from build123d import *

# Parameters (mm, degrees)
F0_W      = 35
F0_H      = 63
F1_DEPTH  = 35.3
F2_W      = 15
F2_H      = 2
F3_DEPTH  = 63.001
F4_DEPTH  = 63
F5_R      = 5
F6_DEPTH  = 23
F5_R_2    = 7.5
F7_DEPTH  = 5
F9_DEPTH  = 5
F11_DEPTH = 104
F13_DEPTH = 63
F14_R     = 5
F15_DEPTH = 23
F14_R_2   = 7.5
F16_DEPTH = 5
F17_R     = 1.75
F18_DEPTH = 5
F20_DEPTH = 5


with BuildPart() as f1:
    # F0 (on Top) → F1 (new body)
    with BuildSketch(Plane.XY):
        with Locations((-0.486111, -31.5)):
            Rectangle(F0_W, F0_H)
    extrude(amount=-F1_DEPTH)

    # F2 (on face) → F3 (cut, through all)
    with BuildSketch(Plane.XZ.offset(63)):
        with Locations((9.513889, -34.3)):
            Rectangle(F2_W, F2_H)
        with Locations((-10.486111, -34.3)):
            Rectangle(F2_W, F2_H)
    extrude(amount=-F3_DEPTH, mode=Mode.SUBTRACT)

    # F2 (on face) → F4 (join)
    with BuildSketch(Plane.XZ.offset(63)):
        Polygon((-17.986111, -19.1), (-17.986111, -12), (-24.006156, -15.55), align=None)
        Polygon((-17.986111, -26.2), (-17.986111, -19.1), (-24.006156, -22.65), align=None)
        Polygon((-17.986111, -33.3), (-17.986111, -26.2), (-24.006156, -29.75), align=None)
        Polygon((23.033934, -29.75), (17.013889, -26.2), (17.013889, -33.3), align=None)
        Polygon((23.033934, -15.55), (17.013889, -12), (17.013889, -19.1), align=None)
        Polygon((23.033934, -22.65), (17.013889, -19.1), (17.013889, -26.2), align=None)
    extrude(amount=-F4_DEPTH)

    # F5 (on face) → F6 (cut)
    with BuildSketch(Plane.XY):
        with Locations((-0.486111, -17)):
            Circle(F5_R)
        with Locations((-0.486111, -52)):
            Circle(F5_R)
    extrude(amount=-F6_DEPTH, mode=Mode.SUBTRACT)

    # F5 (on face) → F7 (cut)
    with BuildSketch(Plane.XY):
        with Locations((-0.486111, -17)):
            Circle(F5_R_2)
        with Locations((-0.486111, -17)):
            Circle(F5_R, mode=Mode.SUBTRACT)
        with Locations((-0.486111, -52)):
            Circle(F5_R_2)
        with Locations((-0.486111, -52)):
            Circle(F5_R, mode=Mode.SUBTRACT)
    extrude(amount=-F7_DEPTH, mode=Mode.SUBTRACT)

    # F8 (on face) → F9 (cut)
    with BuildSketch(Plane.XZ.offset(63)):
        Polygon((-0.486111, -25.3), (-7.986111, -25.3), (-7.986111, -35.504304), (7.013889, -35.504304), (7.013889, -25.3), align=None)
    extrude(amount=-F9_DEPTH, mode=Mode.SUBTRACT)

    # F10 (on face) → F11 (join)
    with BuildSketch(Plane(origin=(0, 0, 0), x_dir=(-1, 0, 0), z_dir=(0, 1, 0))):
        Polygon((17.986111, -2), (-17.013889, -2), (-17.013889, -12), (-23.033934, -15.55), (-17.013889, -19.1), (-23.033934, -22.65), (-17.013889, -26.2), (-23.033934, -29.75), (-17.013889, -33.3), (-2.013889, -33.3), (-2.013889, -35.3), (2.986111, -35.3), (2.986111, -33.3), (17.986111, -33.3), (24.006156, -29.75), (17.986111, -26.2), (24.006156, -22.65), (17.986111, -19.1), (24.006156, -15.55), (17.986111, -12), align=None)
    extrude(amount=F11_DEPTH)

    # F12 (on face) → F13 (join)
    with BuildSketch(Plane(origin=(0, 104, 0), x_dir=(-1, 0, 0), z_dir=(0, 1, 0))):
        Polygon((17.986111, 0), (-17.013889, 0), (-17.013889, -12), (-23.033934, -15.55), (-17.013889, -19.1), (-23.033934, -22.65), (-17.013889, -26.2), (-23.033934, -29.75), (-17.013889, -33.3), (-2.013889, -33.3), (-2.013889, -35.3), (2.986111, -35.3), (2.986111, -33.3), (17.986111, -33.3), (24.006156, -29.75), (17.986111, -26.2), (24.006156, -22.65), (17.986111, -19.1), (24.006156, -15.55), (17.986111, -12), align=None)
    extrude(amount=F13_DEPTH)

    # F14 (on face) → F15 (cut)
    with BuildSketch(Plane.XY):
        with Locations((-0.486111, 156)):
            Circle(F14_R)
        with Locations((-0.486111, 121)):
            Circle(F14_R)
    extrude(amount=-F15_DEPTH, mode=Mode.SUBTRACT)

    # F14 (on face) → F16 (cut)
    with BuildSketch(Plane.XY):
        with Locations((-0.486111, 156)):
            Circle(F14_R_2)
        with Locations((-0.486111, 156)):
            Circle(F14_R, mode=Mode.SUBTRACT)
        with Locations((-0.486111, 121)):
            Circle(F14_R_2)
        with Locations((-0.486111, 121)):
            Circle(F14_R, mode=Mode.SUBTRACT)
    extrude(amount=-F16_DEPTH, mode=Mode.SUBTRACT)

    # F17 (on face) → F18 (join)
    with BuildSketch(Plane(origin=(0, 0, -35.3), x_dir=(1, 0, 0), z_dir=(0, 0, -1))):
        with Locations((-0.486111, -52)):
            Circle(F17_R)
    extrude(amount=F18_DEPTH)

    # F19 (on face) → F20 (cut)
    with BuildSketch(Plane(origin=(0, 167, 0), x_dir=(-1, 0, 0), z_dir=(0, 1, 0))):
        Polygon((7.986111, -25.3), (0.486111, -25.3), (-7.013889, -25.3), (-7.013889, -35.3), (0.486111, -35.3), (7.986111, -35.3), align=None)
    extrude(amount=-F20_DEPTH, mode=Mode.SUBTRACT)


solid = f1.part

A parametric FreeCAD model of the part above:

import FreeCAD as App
import Part
import Sketcher

V = App.Vector
Q = App.Units.Quantity


def add_polygon(sketch, points):
    """Adds a closed chain of lines whose ends are joined by coincident constraints."""
    first, n = sketch.GeometryCount, len(points)
    for a, b in zip(points, points[1:] + points[:1]):
        sketch.addGeometry(Part.LineSegment(App.Vector(*a, 0), App.Vector(*b, 0)), False)
    for i in range(n):
        sketch.addConstraint(Sketcher.Constraint("Coincident", first + i, 2, first + (i + 1) % n, 1))

doc = App.newDocument("Part")
body = doc.addObject("PartDesign::Body", "Body")

# Sketch on XY plane
sketch1 = doc.addObject("Sketcher::SketchObject", "Sketch")
body.addObject(sketch1)
sketch1.AttachmentSupport = (doc.XY_Plane, [""])
sketch1.MapMode = "FlatFace"
add_polygon(sketch1, [(-18, 0), (-18, -63), (17, -63), (17, 0)])  # lines 0-3
sketch1.addConstraint([
    Sketcher.Constraint("Vertical", 0),
    Sketcher.Constraint("Horizontal", 1),
    Sketcher.Constraint("Vertical", 2),
    Sketcher.Constraint("Horizontal", 3),
    Sketcher.Constraint("PointOnObject", 2, 2, -1),
    Sketcher.Constraint("DistanceX", 1, 1, 1, 2, Q("35 mm")),
    Sketcher.Constraint("DistanceY", 0, 2, 0, 1, Q("63 mm")),
    Sketcher.Constraint("DistanceX", 0, 2, -1, 1, Q("17.986111 mm")),
])
pad1 = doc.addObject("PartDesign::Pad", "Pad")
body.addObject(pad1)
pad1.Profile = sketch1
pad1.Length = 35.3
pad1.Reversed = True

# Sketch on XZ plane
sketch2 = doc.addObject("Sketcher::SketchObject", "Sketch001")
body.addObject(sketch2)
sketch2.AttachmentSupport = (doc.XZ_Plane, [""])
sketch2.MapMode = "FlatFace"
sketch2.AttachmentOffset = App.Placement(V(0, 0, 63), App.Rotation())
add_polygon(sketch2, [(2, -33.3), (2, -35.3), (17, -35.3), (17, -33.3)])  # lines 0-3
add_polygon(sketch2, [(-18, -33.3), (-18, -35.3), (-3, -35.3), (-3, -33.3)])  # lines 4-7
sketch2.addConstraint([
    Sketcher.Constraint("Vertical", 0),
    Sketcher.Constraint("Horizontal", 1),
    Sketcher.Constraint("Vertical", 2),
    Sketcher.Constraint("Horizontal", 3),
    Sketcher.Constraint("Vertical", 4),
    Sketcher.Constraint("Horizontal", 5),
    Sketcher.Constraint("Vertical", 6),
    Sketcher.Constraint("Horizontal", 7),
    Sketcher.Constraint("Horizontal", 1, 2, 4, 2),
    Sketcher.Constraint("Horizontal", 3, 2, 6, 2),
    Sketcher.Constraint("Equal", 3, 5),
    Sketcher.Constraint("DistanceX", 1, 1, 1, 2, Q("15 mm")),
    Sketcher.Constraint("DistanceY", 0, 2, 0, 1, Q("2 mm")),
    Sketcher.Constraint("DistanceX", 4, 2, 0, 2, Q("20 mm")),
    Sketcher.Constraint("DistanceY", 0, 2, -1, 1, Q("35.3 mm")),
    Sketcher.Constraint("DistanceX", -1, 1, 0, 2, Q("2.013889 mm")),
])
pocket1 = doc.addObject("PartDesign::Pocket", "Pocket")
body.addObject(pocket1)
pocket1.Profile = sketch2
pocket1.Type = "ThroughAll"

# Sketch on XZ plane
sketch3 = doc.addObject("Sketcher::SketchObject", "Sketch002")
body.addObject(sketch3)
sketch3.AttachmentSupport = (doc.XZ_Plane, [""])
sketch3.MapMode = "FlatFace"
sketch3.AttachmentOffset = App.Placement(V(0, 0, 63), App.Rotation())
add_polygon(sketch3, [(-18, -19), (-18, -12), (-24, -16)])  # lines 0-2
add_polygon(sketch3, [(-18, -26), (-18, -19), (-24, -23)])  # lines 3-5
add_polygon(sketch3, [(-18, -33), (-18, -26), (-24, -30)])  # lines 6-8
add_polygon(sketch3, [(23, -30), (17, -26), (17, -33)])  # lines 9-11
add_polygon(sketch3, [(23, -16), (17, -12), (17, -19)])  # lines 12-14
add_polygon(sketch3, [(23, -23), (17, -19), (17, -26)])  # lines 15-17
sketch3.addConstraint([
    Sketcher.Constraint("Vertical", 0),
    Sketcher.Constraint("Vertical", 3),
    Sketcher.Constraint("Vertical", 6),
    Sketcher.Constraint("Vertical", 10),
    Sketcher.Constraint("Vertical", 13),
    Sketcher.Constraint("Vertical", 16),
    Sketcher.Constraint("Coincident", 3, 2, 2, 2),
    Sketcher.Constraint("Coincident", 6, 2, 5, 2),
    Sketcher.Constraint("Coincident", 15, 2, 13, 2),
    Sketcher.Constraint("Coincident", 16, 2, 9, 2),
    Sketcher.Constraint("Parallel", 1, 4),
    Sketcher.Constraint("Parallel", 2, 5),
    Sketcher.Constraint("Parallel", 4, 7),
    Sketcher.Constraint("Parallel", 5, 8),
    Sketcher.Constraint("Parallel", 8, 9),
    Sketcher.Constraint("Parallel", 7, 11),
    Sketcher.Constraint("Parallel", 9, 12),
    Sketcher.Constraint("Parallel", 11, 14),
    Sketcher.Constraint("Parallel", 12, 15),
    Sketcher.Constraint("Parallel", 14, 17),
    Sketcher.Constraint("Horizontal", 6, 2, 9, 2),
    Sketcher.Constraint("Horizontal", 8, 2, 10, 2),
    Sketcher.Constraint("Horizontal", 7, 2, 11, 2),
    Sketcher.Constraint("Horizontal", 0, 2, 12, 2),
    Sketcher.Constraint("Horizontal", 3, 2, 13, 2),
    Sketcher.Constraint("Vertical", 1, 2, 4, 2),
    Sketcher.Constraint("Vertical", 4, 2, 7, 2),
    Sketcher.Constraint("DistanceY", 0, 1, 0, 2, Q("7.1 mm")),
    Sketcher.Constraint("DistanceY", 0, 2, -1, 1, Q("12 mm")),
    Sketcher.Constraint("DistanceX", 5, 2, 9, 2, Q("35 mm")),
    Sketcher.Constraint("Distance", 1, Q("6.988808 mm")),
    Sketcher.Constraint("DistanceX", 0, 2, -1, 1, Q("17.986111 mm")),
])
pad2 = doc.addObject("PartDesign::Pad", "Pad001")
body.addObject(pad2)
pad2.Profile = sketch3
pad2.Length = 63
pad2.Reversed = True

# Sketch on XY plane
sketch4 = doc.addObject("Sketcher::SketchObject", "Sketch003")
body.addObject(sketch4)
sketch4.AttachmentSupport = (doc.XY_Plane, [""])
sketch4.MapMode = "FlatFace"
sketch4.addGeometry([
    Part.Circle(V(0, -17, 0), V(0, 0, 1), 5),
    Part.Circle(V(0, -52, 0), V(0, 0, 1), 5),
], False)
sketch4.addConstraint([
    Sketcher.Constraint("Equal", 0, 1),
    Sketcher.Constraint("Vertical", 0, 3, 1, 3),
    Sketcher.Constraint("Diameter", 0, Q("10 mm")),
    Sketcher.Constraint("DistanceY", 0, 3, -1, 1, Q("17 mm")),
    Sketcher.Constraint("DistanceY", 1, 3, -1, 1, Q("52 mm")),
    Sketcher.Constraint("DistanceX", 0, 3, -1, 1, Q("0.486111 mm")),
])
pocket2 = doc.addObject("PartDesign::Pocket", "Pocket001")
body.addObject(pocket2)
pocket2.Profile = sketch4
pocket2.Length = 23

# Sketch on XY plane
sketch5 = doc.addObject("Sketcher::SketchObject", "Sketch004")
body.addObject(sketch5)
sketch5.AttachmentSupport = (doc.XY_Plane, [""])
sketch5.MapMode = "FlatFace"
sketch5.addGeometry([
    Part.Circle(V(0, -17, 0), V(0, 0, 1), 8),
    Part.Circle(V(0, -17, 0), V(0, 0, 1), 5),
    Part.Circle(V(0, -52, 0), V(0, 0, 1), 8),
    Part.Circle(V(0, -52, 0), V(0, 0, 1), 5),
], False)
sketch5.addConstraint([
    Sketcher.Constraint("Coincident", 1, 3, 0, 3),
    Sketcher.Constraint("Coincident", 3, 3, 2, 3),
    Sketcher.Constraint("Equal", 0, 2),
    Sketcher.Constraint("Equal", 1, 3),
    Sketcher.Constraint("Vertical", 1, 3, 2, 3),
    Sketcher.Constraint("Diameter", 0, Q("15 mm")),
    Sketcher.Constraint("Diameter", 1, Q("10 mm")),
    Sketcher.Constraint("DistanceY", 0, 3, -1, 1, Q("17 mm")),
    Sketcher.Constraint("DistanceY", 2, 3, -1, 1, Q("52 mm")),
    Sketcher.Constraint("DistanceX", 0, 3, -1, 1, Q("0.486111 mm")),
])
pocket3 = doc.addObject("PartDesign::Pocket", "Pocket002")
body.addObject(pocket3)
pocket3.Profile = sketch5
pocket3.Length = 5

# Sketch on XZ plane
sketch6 = doc.addObject("Sketcher::SketchObject", "Sketch005")
body.addObject(sketch6)
sketch6.AttachmentSupport = (doc.XZ_Plane, [""])
sketch6.MapMode = "FlatFace"
sketch6.AttachmentOffset = App.Placement(V(0, 0, 63), App.Rotation())
add_polygon(sketch6, [(-8, -25), (-8, -36), (7, -36), (7, -25)])  # lines 0-3
sketch6.addConstraint([
    Sketcher.Constraint("Vertical", 0),
    Sketcher.Constraint("Horizontal", 1),
    Sketcher.Constraint("Vertical", 2),
    Sketcher.Constraint("Horizontal", 3),
    Sketcher.Constraint("DistanceX", 1, 1, 1, 2, Q("15 mm")),
    Sketcher.Constraint("DistanceY", 2, 2, -1, 1, Q("25.3 mm")),
    Sketcher.Constraint("DistanceY", 0, 2, 0, 1, Q("10.204304 mm")),
    Sketcher.Constraint("DistanceX", 0, 2, -1, 1, Q("7.986111 mm")),
])
pocket4 = doc.addObject("PartDesign::Pocket", "Pocket003")
body.addObject(pocket4)
pocket4.Profile = sketch6
pocket4.Length = 5

# Sketch on XZ plane
sketch7 = doc.addObject("Sketcher::SketchObject", "Sketch006")
body.addObject(sketch7)
sketch7.AttachmentSupport = (doc.XZ_Plane, [""])
sketch7.MapMode = "FlatFace"
add_polygon(sketch7, [(-18, -2), (17, -2), (17, -12), (23, -15.6), (17, -19.1), (23, -22.6), (17, -26.2), (23, -29.8), (17, -33.3), (2, -33.3), (2, -35.3), (-3, -35.3), (-3, -33.3), (-18, -33.3), (-24, -29.8), (-18, -26.2), (-24, -22.6), (-18, -19.1), (-24, -15.6), (-18, -12)])  # lines 0-19
sketch7.addConstraint([
    Sketcher.Constraint("Horizontal", 0),
    Sketcher.Constraint("Vertical", 1),
    Sketcher.Constraint("Horizontal", 8),
    Sketcher.Constraint("Vertical", 9),
    Sketcher.Constraint("Horizontal", 10),
    Sketcher.Constraint("Vertical", 11),
    Sketcher.Constraint("Horizontal", 12),
    Sketcher.Constraint("Vertical", 19),
    Sketcher.Constraint("Parallel", 2, 4),
    Sketcher.Constraint("Parallel", 3, 5),
    Sketcher.Constraint("Parallel", 4, 6),
    Sketcher.Constraint("Parallel", 5, 7),
    Sketcher.Constraint("Parallel", 6, 13),
    Sketcher.Constraint("Parallel", 7, 14),
    Sketcher.Constraint("Parallel", 13, 15),
    Sketcher.Constraint("Parallel", 14, 16),
    Sketcher.Constraint("Parallel", 15, 17),
    Sketcher.Constraint("Parallel", 16, 18),
    Sketcher.Constraint("Horizontal", 8, 2, 11, 2),
    Sketcher.Constraint("Horizontal", 6, 2, 13, 2),
    Sketcher.Constraint("Horizontal", 5, 2, 14, 2),
    Sketcher.Constraint("Horizontal", 4, 2, 15, 2),
    Sketcher.Constraint("Horizontal", 3, 2, 16, 2),
    Sketcher.Constraint("Horizontal", 2, 2, 17, 2),
    Sketcher.Constraint("Horizontal", 1, 2, 18, 2),
    Sketcher.Constraint("Vertical", 1, 2, 3, 2),
    Sketcher.Constraint("Vertical", 2, 2, 4, 2),
    Sketcher.Constraint("Vertical", 3, 2, 5, 2),
    Sketcher.Constraint("Vertical", 4, 2, 6, 2),
    Sketcher.Constraint("Vertical", 5, 2, 7, 2),
    Sketcher.Constraint("Vertical", 12, 2, 14, 2),
    Sketcher.Constraint("Equal", 8, 12),
    Sketcher.Constraint("DistanceX", 0, 1, 0, 2, Q("35 mm")),
    Sketcher.Constraint("DistanceX", 8, 2, 8, 1, Q("15 mm")),
    Sketcher.Constraint("DistanceY", 1, 2, 1, 1, Q("10 mm")),
    Sketcher.Constraint("DistanceY", 9, 2, 9, 1, Q("2 mm")),
    Sketcher.Constraint("DistanceY", 0, 2, -1, 1, Q("2 mm")),
    Sketcher.Constraint("DistanceY", 3, 2, -1, 1, Q("19.1 mm")),
    Sketcher.Constraint("Distance", 2, Q("6.988808 mm")),
    Sketcher.Constraint("DistanceX", -1, 1, 0, 2, Q("17.013889 mm")),
])
pad3 = doc.addObject("PartDesign::Pad", "Pad002")
body.addObject(pad3)
pad3.Profile = sketch7
pad3.Length = 104
pad3.Reversed = True

# Sketch on XZ plane
sketch8 = doc.addObject("Sketcher::SketchObject", "Sketch007")
body.addObject(sketch8)
sketch8.AttachmentSupport = (doc.XZ_Plane, [""])
sketch8.MapMode = "FlatFace"
sketch8.AttachmentOffset = App.Placement(V(0, 0, -104), App.Rotation())
add_polygon(sketch8, [(-18, 0), (17, 0), (17, -12), (23, -15.6), (17, -19.1), (23, -22.6), (17, -26.2), (23, -29.8), (17, -33.3), (2, -33.3), (2, -35.3), (-3, -35.3), (-3, -33.3), (-18, -33.3), (-24, -29.8), (-18, -26.2), (-24, -22.6), (-18, -19.1), (-24, -15.6), (-18, -12)])  # lines 0-19
sketch8.addConstraint([
    Sketcher.Constraint("Horizontal", 0),
    Sketcher.Constraint("Vertical", 1),
    Sketcher.Constraint("Horizontal", 8),
    Sketcher.Constraint("Vertical", 9),
    Sketcher.Constraint("Horizontal", 10),
    Sketcher.Constraint("Vertical", 11),
    Sketcher.Constraint("Horizontal", 12),
    Sketcher.Constraint("Vertical", 19),
    Sketcher.Constraint("PointOnObject", 0, 2, -1),
    Sketcher.Constraint("Parallel", 2, 4),
    Sketcher.Constraint("Parallel", 3, 5),
    Sketcher.Constraint("Parallel", 4, 6),
    Sketcher.Constraint("Parallel", 5, 7),
    Sketcher.Constraint("Parallel", 6, 13),
    Sketcher.Constraint("Parallel", 7, 14),
    Sketcher.Constraint("Parallel", 13, 15),
    Sketcher.Constraint("Parallel", 14, 16),
    Sketcher.Constraint("Parallel", 15, 17),
    Sketcher.Constraint("Parallel", 16, 18),
    Sketcher.Constraint("Horizontal", 8, 2, 11, 2),
    Sketcher.Constraint("Horizontal", 6, 2, 13, 2),
    Sketcher.Constraint("Horizontal", 5, 2, 14, 2),
    Sketcher.Constraint("Horizontal", 4, 2, 15, 2),
    Sketcher.Constraint("Horizontal", 3, 2, 16, 2),
    Sketcher.Constraint("Horizontal", 2, 2, 17, 2),
    Sketcher.Constraint("Horizontal", 1, 2, 18, 2),
    Sketcher.Constraint("Vertical", 1, 2, 3, 2),
    Sketcher.Constraint("Vertical", 2, 2, 4, 2),
    Sketcher.Constraint("Vertical", 3, 2, 5, 2),
    Sketcher.Constraint("Vertical", 4, 2, 6, 2),
    Sketcher.Constraint("Vertical", 5, 2, 7, 2),
    Sketcher.Constraint("Vertical", 12, 2, 14, 2),
    Sketcher.Constraint("Equal", 8, 12),
    Sketcher.Constraint("DistanceX", 0, 1, 0, 2, Q("35 mm")),
    Sketcher.Constraint("DistanceX", 8, 2, 8, 1, Q("15 mm")),
    Sketcher.Constraint("DistanceY", 1, 2, 1, 1, Q("12 mm")),
    Sketcher.Constraint("DistanceY", 9, 2, 9, 1, Q("2 mm")),
    Sketcher.Constraint("DistanceY", 3, 2, -1, 1, Q("19.1 mm")),
    Sketcher.Constraint("Distance", 2, Q("6.988808 mm")),
    Sketcher.Constraint("DistanceX", -1, 1, 0, 2, Q("17.013889 mm")),
])
pad4 = doc.addObject("PartDesign::Pad", "Pad003")
body.addObject(pad4)
pad4.Profile = sketch8
pad4.Length = 63
pad4.Reversed = True

# Sketch on XY plane
sketch9 = doc.addObject("Sketcher::SketchObject", "Sketch008")
body.addObject(sketch9)
sketch9.AttachmentSupport = (doc.XY_Plane, [""])
sketch9.MapMode = "FlatFace"
sketch9.addGeometry([
    Part.Circle(V(0, 156, 0), V(0, 0, 1), 5),
    Part.Circle(V(0, 121, 0), V(0, 0, 1), 5),
], False)
sketch9.addConstraint([
    Sketcher.Constraint("Equal", 0, 1),
    Sketcher.Constraint("Vertical", 0, 3, 1, 3),
    Sketcher.Constraint("Diameter", 0, Q("10 mm")),
    Sketcher.Constraint("DistanceY", -1, 1, 0, 3, Q("156 mm")),
    Sketcher.Constraint("DistanceY", -1, 1, 1, 3, Q("121 mm")),
    Sketcher.Constraint("DistanceX", 0, 3, -1, 1, Q("0.486111 mm")),
])
pocket5 = doc.addObject("PartDesign::Pocket", "Pocket004")
body.addObject(pocket5)
pocket5.Profile = sketch9
pocket5.Length = 23

# Sketch on XY plane
sketch10 = doc.addObject("Sketcher::SketchObject", "Sketch009")
body.addObject(sketch10)
sketch10.AttachmentSupport = (doc.XY_Plane, [""])
sketch10.MapMode = "FlatFace"
sketch10.addGeometry([
    Part.Circle(V(0, 156, 0), V(0, 0, 1), 8),
    Part.Circle(V(0, 156, 0), V(0, 0, 1), 5),
    Part.Circle(V(0, 121, 0), V(0, 0, 1), 8),
    Part.Circle(V(0, 121, 0), V(0, 0, 1), 5),
], False)
sketch10.addConstraint([
    Sketcher.Constraint("Coincident", 1, 3, 0, 3),
    Sketcher.Constraint("Coincident", 3, 3, 2, 3),
    Sketcher.Constraint("Equal", 0, 2),
    Sketcher.Constraint("Equal", 1, 3),
    Sketcher.Constraint("Vertical", 1, 3, 2, 3),
    Sketcher.Constraint("Diameter", 0, Q("15 mm")),
    Sketcher.Constraint("Diameter", 1, Q("10 mm")),
    Sketcher.Constraint("DistanceY", -1, 1, 0, 3, Q("156 mm")),
    Sketcher.Constraint("DistanceY", -1, 1, 2, 3, Q("121 mm")),
    Sketcher.Constraint("DistanceX", 0, 3, -1, 1, Q("0.486111 mm")),
])
pocket6 = doc.addObject("PartDesign::Pocket", "Pocket005")
body.addObject(pocket6)
pocket6.Profile = sketch10
pocket6.Length = 5

# Sketch on XY plane
sketch11 = doc.addObject("Sketcher::SketchObject", "Sketch010")
body.addObject(sketch11)
sketch11.AttachmentSupport = (doc.XY_Plane, [""])
sketch11.MapMode = "FlatFace"
sketch11.AttachmentOffset = App.Placement(V(0, 0, -35.3), App.Rotation())
sketch11.addGeometry(Part.Circle(V(-0.5, 52, 0), V(0, 0, 1), 1.8), False)
sketch11.addConstraint([
    Sketcher.Constraint("Diameter", 0, Q("3.5 mm")),
    Sketcher.Constraint("DistanceY", -1, 1, 0, 3, Q("52 mm")),
    Sketcher.Constraint("DistanceX", 0, 3, -1, 1, Q("0.486111 mm")),
])
pad5 = doc.addObject("PartDesign::Pad", "Pad004")
body.addObject(pad5)
pad5.Profile = sketch11
pad5.Length = 5
pad5.Reversed = True

# Sketch on XZ plane
sketch12 = doc.addObject("Sketcher::SketchObject", "Sketch011")
body.addObject(sketch12)
sketch12.AttachmentSupport = (doc.XZ_Plane, [""])
sketch12.MapMode = "FlatFace"
sketch12.AttachmentOffset = App.Placement(V(0, 0, -167), App.Rotation())
add_polygon(sketch12, [(-8, -25), (7, -25), (7, -35), (-8, -35)])  # lines 0-3
sketch12.addConstraint([
    Sketcher.Constraint("Horizontal", 0),
    Sketcher.Constraint("Vertical", 1),
    Sketcher.Constraint("Horizontal", 2),
    Sketcher.Constraint("Vertical", 3),
    Sketcher.Constraint("DistanceX", 0, 1, 0, 2, Q("15 mm")),
    Sketcher.Constraint("DistanceY", 1, 2, 1, 1, Q("10 mm")),
    Sketcher.Constraint("DistanceY", 0, 2, -1, 1, Q("25.3 mm")),
    Sketcher.Constraint("DistanceX", -1, 1, 0, 2, Q("7.013889 mm")),
])
pocket7 = doc.addObject("PartDesign::Pocket", "Pocket006")
body.addObject(pocket7)
pocket7.Profile = sketch12
pocket7.Length = 5
pocket7.Reversed = True

doc.recompute()
